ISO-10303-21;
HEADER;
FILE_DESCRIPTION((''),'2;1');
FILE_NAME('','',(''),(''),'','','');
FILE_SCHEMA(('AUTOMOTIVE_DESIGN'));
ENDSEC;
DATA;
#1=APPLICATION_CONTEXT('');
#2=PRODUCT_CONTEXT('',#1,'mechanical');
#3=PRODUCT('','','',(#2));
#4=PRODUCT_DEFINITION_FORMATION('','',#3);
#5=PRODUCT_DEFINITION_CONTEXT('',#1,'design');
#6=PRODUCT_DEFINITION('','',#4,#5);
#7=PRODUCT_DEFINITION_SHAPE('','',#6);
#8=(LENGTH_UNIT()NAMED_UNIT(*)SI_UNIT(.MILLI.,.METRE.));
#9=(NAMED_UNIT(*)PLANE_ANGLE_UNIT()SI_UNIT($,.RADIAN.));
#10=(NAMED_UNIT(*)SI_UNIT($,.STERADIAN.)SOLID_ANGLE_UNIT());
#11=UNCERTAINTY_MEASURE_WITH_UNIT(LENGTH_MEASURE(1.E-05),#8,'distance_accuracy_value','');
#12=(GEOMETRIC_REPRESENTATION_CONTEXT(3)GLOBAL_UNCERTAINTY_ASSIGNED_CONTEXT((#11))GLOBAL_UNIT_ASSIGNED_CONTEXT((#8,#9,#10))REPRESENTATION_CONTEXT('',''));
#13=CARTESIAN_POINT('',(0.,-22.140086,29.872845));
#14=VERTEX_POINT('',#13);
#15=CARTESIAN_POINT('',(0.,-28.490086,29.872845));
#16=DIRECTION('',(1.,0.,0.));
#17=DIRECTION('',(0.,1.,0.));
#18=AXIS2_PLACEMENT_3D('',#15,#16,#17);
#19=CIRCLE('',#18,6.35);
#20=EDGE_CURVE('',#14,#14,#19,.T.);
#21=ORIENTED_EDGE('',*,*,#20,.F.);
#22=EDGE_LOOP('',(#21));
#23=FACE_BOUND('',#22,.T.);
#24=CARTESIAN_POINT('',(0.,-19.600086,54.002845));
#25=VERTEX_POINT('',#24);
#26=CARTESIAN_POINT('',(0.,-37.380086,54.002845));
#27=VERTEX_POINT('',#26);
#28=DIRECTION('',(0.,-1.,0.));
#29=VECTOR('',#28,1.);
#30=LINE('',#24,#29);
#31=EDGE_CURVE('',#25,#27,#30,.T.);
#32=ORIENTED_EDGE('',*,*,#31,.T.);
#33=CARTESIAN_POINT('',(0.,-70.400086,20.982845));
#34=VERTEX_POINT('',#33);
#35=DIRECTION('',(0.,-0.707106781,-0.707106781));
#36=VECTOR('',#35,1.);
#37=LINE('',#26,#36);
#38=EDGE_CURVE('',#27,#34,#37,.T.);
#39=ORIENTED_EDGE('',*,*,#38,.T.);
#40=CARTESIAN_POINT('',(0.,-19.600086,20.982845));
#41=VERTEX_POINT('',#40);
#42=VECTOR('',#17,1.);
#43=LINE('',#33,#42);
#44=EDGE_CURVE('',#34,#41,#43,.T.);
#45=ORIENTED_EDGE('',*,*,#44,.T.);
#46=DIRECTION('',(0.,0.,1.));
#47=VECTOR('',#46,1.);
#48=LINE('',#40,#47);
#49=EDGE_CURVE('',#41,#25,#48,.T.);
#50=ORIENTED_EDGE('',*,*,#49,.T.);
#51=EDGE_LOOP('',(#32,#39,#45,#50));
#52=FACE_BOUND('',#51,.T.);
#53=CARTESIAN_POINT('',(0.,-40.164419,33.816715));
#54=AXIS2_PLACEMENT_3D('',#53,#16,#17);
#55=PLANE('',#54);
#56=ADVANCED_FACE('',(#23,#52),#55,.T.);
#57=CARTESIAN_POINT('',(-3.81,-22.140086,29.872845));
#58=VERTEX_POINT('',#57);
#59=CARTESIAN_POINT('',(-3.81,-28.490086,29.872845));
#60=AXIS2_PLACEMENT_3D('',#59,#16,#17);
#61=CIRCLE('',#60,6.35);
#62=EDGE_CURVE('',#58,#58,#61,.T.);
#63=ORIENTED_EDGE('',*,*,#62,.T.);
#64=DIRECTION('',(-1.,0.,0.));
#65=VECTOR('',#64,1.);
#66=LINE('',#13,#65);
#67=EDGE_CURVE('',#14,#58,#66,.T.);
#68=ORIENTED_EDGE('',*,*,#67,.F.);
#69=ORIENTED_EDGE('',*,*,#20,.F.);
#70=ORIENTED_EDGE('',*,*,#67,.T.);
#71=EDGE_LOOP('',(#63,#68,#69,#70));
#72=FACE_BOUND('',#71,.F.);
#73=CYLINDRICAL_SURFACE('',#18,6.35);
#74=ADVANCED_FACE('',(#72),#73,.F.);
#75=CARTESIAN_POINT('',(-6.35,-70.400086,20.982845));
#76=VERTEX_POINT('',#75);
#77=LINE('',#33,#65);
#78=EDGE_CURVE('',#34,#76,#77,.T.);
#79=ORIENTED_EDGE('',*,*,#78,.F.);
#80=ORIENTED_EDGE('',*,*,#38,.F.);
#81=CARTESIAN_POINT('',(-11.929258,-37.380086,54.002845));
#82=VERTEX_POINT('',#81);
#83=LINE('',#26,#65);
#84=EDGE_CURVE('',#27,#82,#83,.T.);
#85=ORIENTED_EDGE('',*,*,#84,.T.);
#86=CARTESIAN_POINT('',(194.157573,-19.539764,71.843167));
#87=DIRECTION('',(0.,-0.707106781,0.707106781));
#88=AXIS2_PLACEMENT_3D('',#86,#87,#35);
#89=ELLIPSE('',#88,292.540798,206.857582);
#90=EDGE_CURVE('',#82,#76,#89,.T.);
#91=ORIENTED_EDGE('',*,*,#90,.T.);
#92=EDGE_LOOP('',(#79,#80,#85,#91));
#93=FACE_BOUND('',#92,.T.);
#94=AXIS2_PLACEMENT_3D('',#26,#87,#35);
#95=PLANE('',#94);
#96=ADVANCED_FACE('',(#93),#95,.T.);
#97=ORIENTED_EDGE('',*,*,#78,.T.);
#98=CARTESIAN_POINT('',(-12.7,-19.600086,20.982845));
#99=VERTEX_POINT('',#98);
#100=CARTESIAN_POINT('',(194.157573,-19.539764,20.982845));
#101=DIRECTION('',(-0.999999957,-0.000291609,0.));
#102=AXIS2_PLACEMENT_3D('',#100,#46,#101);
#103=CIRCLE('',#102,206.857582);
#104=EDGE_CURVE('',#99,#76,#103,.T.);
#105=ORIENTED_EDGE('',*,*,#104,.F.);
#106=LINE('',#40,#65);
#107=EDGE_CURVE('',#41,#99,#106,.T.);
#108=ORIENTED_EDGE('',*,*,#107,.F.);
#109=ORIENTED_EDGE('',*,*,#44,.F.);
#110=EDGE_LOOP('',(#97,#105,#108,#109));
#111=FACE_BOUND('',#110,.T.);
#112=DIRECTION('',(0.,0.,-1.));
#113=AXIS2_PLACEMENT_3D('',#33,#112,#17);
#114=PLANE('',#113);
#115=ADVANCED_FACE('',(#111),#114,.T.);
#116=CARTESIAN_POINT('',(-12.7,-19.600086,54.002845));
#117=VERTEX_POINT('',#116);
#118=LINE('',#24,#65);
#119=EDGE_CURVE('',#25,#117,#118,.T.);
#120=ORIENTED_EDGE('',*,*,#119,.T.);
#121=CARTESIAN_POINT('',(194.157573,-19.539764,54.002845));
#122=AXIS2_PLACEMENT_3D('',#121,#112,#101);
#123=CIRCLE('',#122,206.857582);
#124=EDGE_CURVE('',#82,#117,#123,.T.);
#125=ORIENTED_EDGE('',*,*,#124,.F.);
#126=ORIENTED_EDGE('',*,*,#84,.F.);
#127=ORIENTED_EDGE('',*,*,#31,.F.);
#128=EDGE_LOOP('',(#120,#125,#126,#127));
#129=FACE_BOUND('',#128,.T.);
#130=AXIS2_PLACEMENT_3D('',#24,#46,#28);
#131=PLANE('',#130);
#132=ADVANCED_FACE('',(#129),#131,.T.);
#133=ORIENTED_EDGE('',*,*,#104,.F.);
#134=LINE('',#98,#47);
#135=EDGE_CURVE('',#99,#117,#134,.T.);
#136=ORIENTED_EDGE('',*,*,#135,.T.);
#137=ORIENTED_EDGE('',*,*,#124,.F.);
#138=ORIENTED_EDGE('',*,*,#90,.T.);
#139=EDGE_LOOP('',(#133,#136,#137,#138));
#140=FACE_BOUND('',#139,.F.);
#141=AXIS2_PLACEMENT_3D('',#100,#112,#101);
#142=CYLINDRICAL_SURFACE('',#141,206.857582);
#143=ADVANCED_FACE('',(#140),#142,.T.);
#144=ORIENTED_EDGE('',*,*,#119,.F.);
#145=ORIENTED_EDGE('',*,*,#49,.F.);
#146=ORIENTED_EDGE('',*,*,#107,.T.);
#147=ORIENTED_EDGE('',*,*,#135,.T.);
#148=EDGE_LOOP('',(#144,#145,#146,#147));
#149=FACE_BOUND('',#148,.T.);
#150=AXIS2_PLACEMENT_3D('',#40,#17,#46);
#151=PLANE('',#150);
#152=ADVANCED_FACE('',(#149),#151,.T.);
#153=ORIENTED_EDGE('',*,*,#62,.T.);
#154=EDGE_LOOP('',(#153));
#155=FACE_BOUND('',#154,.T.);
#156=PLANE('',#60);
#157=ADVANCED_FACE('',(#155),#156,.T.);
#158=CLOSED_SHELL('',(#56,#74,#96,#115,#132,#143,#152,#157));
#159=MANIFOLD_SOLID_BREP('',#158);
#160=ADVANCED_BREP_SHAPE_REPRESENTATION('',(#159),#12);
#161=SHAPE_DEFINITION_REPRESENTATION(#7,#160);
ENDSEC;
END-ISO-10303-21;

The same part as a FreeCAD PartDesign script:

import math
import FreeCAD as App
import Part
import Sketcher
Q = App.Units.Quantity

doc = App.newDocument("Part")
params = doc.addObject("Spreadsheet::Sheet", "Params")
for row, (alias, value) in enumerate([
    ("sketch1_width", "2 in"),
    ("sketch1_width2", "0.7 in"),
    ("sketch1_height", "1.3 in"),
    ("pad1_length", "0.5 in"),
    ("sketch2_diameter", "0.5 in"),
    ("pocket1_length", "0.15 in"),
    ("sketch3_height", "2 in"),
    ("sketch3_width", "0.25 in"),
    ("pocket2_length", "2 in"),
], start=1):
    params.set(f"A{row}", alias)
    params.set(f"B{row}", "=" + value)
    params.setAlias(f"B{row}", alias)

body = doc.addObject("PartDesign::Body", "Body")

# Sketch on YZ plane
sketch1 = body.newObject("Sketcher::SketchObject", "Sketch")
sketch1.AttachmentSupport = (doc.getObject("YZ_Plane"), [""])
sketch1.MapMode = "FlatFace"
sketch1.addGeometry([
    Part.LineSegment(App.Vector(-37, 54, 0), App.Vector(-70, 21, 0)),
    Part.LineSegment(App.Vector(-70, 21, 0), App.Vector(-20, 21, 0)),
    Part.LineSegment(App.Vector(-20, 21, 0), App.Vector(-20, 54, 0)),
    Part.LineSegment(App.Vector(-20, 54, 0), App.Vector(-37, 54, 0)),
], False)
sketch1.addConstraint([
    Sketcher.Constraint("Coincident", 0, 2, 1, 1),
    Sketcher.Constraint("Coincident", 1, 2, 2, 1),
    Sketcher.Constraint("Coincident", 2, 2, 3, 1),
    Sketcher.Constraint("Coincident", 3, 2, 0, 1),
    Sketcher.Constraint("Horizontal", 1),
    Sketcher.Constraint("Vertical", 2),
    Sketcher.Constraint("Horizontal", 3),
    Sketcher.Constraint("DistanceX", 1, 1, 1, 2, Q("2 in")),
    Sketcher.Constraint("DistanceX", 3, 2, 3, 1, Q("0.7 in")),
    Sketcher.Constraint("DistanceY", 2, 1, 2, 2, Q("1.3 in")),
    Sketcher.Constraint("DistanceX", 0, 2, -1, 1, 70.400086),
    Sketcher.Constraint("DistanceY", -1, 1, 0, 2, 20.982845),
])
sketch1.setExpression("Constraints[7]", "Params.sketch1_width")
sketch1.setExpression("Constraints[8]", "Params.sketch1_width2")
sketch1.setExpression("Constraints[9]", "Params.sketch1_height")
pad1 = body.newObject("PartDesign::Pad", "Pad")
pad1.Profile = sketch1
pad1.setExpression("Length", "Params.pad1_length")
pad1.Reversed = True

# Sketch on YZ plane
sketch2 = body.newObject("Sketcher::SketchObject", "Sketch001")
sketch2.AttachmentSupport = (doc.getObject("YZ_Plane"), [""])
sketch2.MapMode = "FlatFace"
sketch2.addGeometry(Part.Circle(App.Vector(-28, 30, 0), App.Vector(0, 0, 1), 6), False)
sketch2.addConstraint([
    Sketcher.Constraint("Diameter", 0, Q("0.5 in")),
    Sketcher.Constraint("DistanceX", 0, 3, -1, 1, 28.490086),
    Sketcher.Constraint("DistanceY", -1, 1, 0, 3, 29.872845),
])
sketch2.setExpression("Constraints[0]", "Params.sketch2_diameter")
pocket1 = body.newObject("PartDesign::Pocket", "Pocket")
pocket1.Profile = sketch2
pocket1.setExpression("Length", "Params.pocket1_length")

# Sketch on XY plane
sketch3 = body.newObject("Sketcher::SketchObject", "Sketch002")
sketch3.AttachmentSupport = (doc.getObject("XY_Plane"), [""])
sketch3.MapMode = "FlatFace"
sketch3.AttachmentOffset = App.Placement(App.Vector(0, 0, 20.982845), App.Rotation())
sketch3.addGeometry([
    Part.ArcOfCircle(Part.Circle(App.Vector(194, -20, 0), App.Vector(0, 0, 1), 207), math.radians(-179.98), math.radians(-165.77)),
    Part.LineSegment(App.Vector(-6, -70, 0), App.Vector(-13, -70, 0)),
    Part.LineSegment(App.Vector(-13, -70, 0), App.Vector(-13, -20, 0)),
], False)
sketch3.addConstraint([
    Sketcher.Constraint("Coincident", 0, 2, 1, 1),
    Sketcher.Constraint("Coincident", 1, 2, 2, 1),
    Sketcher.Constraint("Coincident", 2, 2, 0, 1),
    Sketcher.Constraint("Horizontal", 1),
    Sketcher.Constraint("Vertical", 2),
    Sketcher.Constraint("DistanceY", 2, 1, 2, 2, Q("2 in")),
    Sketcher.Constraint("DistanceX", 1, 2, 1, 1, Q("0.25 in")),
    Sketcher.Constraint("DistanceX", 1, 2, -1, 1, Q("0.5 in")),
    Sketcher.Constraint("Radius", 0, 206.857582),
    Sketcher.Constraint("DistanceY", 0, 3, -1, 1, 19.539764),
])
sketch3.setExpression("Constraints[5]", "Params.sketch3_height")
sketch3.setExpression("Constraints[6]", "Params.sketch3_width")
pocket2 = body.newObject("PartDesign::Pocket", "Pocket001")
pocket2.Profile = sketch3
pocket2.setExpression("Length", "Params.pocket2_length")
pocket2.Reversed = True

doc.recompute()
